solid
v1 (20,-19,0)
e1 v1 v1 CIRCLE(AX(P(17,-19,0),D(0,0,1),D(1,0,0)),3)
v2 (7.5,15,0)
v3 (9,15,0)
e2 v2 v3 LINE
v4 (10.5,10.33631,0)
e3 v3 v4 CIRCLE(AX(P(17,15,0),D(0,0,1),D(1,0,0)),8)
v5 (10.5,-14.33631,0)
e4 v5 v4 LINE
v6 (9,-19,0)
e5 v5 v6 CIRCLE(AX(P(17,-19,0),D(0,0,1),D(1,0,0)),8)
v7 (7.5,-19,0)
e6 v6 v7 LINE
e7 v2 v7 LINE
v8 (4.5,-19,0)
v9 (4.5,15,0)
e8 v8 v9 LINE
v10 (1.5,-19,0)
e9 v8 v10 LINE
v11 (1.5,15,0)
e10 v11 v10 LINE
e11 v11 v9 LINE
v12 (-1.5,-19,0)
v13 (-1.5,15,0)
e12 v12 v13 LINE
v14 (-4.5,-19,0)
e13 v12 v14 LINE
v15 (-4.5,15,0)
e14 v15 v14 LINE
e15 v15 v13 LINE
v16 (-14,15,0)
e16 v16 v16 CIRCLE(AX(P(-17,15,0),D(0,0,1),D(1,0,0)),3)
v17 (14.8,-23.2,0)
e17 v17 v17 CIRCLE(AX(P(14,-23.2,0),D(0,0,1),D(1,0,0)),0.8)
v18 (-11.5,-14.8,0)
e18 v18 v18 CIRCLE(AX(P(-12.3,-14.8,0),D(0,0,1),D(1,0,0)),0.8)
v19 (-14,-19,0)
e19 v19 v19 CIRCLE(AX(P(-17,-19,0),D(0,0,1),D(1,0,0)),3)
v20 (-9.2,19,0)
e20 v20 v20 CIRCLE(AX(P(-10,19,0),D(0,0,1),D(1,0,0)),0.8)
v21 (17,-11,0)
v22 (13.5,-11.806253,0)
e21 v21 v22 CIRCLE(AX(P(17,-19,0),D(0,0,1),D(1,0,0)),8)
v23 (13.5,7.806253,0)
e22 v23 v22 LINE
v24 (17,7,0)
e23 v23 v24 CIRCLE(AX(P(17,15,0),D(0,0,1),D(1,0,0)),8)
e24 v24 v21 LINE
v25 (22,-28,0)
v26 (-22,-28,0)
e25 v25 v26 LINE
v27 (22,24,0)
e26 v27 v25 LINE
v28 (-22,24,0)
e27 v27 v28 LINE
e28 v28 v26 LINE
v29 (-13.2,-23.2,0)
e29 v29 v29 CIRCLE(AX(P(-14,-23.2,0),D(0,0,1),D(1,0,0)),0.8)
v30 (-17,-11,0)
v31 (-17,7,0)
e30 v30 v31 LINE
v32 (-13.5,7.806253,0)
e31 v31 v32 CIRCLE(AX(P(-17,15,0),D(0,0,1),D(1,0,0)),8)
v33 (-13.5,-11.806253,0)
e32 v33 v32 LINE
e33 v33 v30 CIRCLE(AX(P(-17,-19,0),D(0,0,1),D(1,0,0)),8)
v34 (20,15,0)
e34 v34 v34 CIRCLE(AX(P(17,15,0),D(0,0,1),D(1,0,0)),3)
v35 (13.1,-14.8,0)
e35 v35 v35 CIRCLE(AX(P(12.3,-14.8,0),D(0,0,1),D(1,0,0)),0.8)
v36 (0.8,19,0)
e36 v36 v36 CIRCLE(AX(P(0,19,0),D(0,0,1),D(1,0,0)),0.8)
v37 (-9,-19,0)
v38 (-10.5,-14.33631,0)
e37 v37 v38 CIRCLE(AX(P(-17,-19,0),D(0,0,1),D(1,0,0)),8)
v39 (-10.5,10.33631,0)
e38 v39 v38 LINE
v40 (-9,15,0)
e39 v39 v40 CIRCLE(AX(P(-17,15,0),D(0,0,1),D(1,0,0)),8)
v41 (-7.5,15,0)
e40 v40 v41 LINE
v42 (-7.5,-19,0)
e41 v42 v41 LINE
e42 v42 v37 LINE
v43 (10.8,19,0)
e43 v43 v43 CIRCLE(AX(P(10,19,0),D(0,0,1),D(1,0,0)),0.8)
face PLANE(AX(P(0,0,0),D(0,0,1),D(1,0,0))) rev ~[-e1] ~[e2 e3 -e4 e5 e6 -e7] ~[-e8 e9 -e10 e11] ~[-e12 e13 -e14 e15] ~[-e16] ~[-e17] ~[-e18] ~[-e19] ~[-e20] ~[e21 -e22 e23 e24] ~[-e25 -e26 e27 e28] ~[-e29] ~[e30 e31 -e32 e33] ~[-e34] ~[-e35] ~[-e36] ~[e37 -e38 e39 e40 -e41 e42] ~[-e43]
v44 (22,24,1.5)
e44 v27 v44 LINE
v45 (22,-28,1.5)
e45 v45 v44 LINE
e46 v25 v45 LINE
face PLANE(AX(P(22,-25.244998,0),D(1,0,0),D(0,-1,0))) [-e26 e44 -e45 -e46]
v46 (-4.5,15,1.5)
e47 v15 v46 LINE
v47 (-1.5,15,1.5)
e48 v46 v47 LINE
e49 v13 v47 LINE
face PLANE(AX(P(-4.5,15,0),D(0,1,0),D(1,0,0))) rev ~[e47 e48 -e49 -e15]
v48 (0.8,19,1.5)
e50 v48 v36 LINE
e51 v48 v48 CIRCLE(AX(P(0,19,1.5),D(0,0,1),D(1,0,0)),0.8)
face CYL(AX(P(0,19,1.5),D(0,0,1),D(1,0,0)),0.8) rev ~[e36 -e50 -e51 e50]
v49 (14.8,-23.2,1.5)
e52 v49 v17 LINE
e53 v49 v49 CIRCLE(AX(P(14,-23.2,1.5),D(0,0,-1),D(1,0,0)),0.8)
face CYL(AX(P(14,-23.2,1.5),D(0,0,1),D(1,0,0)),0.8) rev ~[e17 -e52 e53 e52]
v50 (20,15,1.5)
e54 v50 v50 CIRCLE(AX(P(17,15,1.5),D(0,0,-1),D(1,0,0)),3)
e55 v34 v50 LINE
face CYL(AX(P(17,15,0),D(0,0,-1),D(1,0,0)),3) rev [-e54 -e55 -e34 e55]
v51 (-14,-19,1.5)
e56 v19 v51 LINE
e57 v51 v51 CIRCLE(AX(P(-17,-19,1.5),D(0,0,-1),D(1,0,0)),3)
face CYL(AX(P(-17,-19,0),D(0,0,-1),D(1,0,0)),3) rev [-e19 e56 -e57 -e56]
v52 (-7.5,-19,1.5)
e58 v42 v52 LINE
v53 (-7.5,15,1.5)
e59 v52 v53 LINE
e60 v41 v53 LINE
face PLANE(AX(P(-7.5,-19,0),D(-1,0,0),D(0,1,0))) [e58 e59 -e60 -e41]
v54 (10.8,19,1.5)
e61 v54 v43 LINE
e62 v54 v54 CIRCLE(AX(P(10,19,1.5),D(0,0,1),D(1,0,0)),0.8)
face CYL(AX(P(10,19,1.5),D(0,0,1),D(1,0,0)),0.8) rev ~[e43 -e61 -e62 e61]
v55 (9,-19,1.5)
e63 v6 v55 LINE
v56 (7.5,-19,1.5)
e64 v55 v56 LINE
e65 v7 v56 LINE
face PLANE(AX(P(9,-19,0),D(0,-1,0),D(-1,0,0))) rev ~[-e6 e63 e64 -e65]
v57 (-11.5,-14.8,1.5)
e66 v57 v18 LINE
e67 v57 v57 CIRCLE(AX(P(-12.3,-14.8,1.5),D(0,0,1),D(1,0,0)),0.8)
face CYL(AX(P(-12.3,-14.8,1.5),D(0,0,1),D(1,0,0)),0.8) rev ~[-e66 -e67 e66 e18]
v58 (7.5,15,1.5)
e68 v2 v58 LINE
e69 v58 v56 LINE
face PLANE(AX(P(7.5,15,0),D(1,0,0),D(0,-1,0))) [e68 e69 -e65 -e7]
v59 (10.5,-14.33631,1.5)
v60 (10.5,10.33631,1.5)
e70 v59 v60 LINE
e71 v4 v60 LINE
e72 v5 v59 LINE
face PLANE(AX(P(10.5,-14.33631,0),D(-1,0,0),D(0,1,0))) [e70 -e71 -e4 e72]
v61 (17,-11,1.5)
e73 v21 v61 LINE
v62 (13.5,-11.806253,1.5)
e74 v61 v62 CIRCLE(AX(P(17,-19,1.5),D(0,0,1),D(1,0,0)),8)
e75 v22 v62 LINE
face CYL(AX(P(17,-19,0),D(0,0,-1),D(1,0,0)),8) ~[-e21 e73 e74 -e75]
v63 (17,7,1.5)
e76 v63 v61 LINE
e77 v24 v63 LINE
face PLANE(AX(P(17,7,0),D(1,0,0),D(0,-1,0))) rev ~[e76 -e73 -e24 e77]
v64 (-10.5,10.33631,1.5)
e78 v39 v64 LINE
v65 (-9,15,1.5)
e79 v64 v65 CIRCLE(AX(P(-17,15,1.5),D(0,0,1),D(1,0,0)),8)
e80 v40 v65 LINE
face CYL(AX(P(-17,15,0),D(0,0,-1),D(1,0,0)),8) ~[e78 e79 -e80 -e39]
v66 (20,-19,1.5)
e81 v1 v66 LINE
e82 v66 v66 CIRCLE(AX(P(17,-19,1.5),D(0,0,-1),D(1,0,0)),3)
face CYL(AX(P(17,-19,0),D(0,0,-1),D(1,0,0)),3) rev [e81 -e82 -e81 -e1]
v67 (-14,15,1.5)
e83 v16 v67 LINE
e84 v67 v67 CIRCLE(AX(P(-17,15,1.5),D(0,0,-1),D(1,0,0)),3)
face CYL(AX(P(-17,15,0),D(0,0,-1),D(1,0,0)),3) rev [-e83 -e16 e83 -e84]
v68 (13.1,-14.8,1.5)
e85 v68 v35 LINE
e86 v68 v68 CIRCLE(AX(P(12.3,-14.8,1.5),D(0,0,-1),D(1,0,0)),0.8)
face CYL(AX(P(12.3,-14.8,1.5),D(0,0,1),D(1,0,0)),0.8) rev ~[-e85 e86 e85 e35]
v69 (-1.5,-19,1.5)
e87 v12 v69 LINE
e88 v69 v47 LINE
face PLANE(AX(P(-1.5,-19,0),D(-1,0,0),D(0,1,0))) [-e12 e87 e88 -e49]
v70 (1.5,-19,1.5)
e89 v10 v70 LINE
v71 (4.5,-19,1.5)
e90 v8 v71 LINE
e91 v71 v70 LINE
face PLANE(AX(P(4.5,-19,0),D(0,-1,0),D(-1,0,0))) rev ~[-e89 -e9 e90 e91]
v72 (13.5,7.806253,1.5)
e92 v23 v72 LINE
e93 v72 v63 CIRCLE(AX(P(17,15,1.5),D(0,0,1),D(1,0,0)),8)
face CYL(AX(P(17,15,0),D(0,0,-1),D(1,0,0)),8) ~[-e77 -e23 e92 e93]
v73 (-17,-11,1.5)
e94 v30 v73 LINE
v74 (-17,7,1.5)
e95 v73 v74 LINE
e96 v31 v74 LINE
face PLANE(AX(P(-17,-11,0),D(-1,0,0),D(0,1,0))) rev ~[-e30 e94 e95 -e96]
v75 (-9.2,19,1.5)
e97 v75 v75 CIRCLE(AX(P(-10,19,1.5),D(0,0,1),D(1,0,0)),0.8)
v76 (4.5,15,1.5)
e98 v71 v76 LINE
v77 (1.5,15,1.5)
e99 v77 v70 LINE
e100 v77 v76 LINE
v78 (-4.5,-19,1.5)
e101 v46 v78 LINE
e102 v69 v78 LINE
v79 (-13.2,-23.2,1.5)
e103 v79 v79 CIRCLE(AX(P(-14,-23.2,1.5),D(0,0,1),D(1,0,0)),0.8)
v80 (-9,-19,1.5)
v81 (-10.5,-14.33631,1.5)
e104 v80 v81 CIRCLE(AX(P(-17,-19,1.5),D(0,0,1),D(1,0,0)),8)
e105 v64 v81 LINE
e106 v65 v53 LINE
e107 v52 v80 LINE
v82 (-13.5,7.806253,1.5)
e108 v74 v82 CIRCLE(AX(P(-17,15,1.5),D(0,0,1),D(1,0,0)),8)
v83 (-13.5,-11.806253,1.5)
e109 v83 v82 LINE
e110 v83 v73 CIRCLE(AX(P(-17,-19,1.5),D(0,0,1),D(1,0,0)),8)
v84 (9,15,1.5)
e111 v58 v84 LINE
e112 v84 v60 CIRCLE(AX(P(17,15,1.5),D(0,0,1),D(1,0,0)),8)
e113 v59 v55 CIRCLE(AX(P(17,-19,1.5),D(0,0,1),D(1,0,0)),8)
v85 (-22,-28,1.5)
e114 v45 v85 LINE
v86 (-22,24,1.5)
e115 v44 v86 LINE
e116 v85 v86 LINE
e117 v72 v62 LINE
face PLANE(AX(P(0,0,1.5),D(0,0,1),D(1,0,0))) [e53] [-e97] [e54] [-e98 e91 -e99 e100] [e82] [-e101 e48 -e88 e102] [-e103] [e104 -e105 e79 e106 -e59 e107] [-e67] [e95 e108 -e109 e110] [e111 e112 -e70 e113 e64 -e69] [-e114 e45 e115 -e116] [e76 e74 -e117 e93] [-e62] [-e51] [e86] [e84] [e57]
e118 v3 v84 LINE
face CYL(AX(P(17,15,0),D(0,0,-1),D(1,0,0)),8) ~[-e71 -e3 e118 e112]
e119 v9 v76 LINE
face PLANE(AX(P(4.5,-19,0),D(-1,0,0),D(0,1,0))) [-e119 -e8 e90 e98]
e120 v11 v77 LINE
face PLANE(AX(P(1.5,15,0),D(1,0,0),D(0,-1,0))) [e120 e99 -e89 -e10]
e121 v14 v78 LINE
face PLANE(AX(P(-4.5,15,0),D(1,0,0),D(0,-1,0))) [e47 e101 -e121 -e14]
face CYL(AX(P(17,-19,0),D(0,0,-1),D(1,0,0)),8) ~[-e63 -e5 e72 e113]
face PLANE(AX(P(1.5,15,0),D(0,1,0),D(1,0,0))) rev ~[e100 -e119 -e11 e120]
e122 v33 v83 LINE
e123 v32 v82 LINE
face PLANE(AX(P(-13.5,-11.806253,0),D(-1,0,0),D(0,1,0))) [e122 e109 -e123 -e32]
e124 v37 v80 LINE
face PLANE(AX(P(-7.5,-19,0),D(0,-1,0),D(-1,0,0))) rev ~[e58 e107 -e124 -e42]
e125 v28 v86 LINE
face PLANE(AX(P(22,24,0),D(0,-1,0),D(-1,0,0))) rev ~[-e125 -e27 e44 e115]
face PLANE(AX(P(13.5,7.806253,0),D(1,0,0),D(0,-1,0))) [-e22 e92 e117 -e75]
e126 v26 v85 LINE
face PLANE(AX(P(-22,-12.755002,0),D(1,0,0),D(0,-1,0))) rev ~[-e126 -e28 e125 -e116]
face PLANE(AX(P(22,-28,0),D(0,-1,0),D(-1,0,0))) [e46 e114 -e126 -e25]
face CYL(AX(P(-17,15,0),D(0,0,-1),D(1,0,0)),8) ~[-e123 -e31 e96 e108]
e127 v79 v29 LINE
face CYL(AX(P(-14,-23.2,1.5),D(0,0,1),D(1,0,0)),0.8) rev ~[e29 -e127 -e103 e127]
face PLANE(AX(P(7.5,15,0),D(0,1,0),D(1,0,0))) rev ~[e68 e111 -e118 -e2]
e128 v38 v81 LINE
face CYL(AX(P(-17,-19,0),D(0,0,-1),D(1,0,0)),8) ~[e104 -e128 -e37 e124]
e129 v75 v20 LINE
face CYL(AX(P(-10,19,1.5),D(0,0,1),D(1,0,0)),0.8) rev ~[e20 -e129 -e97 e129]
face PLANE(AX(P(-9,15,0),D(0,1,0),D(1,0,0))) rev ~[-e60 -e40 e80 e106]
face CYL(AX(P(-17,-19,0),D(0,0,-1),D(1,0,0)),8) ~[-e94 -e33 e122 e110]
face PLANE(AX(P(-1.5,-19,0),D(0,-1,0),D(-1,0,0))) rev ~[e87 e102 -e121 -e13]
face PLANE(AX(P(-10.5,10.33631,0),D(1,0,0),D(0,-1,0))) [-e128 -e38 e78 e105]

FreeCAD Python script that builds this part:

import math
import FreeCAD as App
import Part
import Sketcher
from FreeCAD import Vector
Q = App.Units.Quantity

doc = App.newDocument("Part")
body = doc.addObject("PartDesign::Body", "Body")

sketch1 = body.newObject("Sketcher::SketchObject", "Sketch")
sketch1.AttachmentSupport = (doc.getObject("XY_Plane"), [""])
sketch1.MapMode = "FlatFace"
sketch1.addGeometry(Part.LineSegment(Vector(-22, -28, 0), Vector(22, -28, 0)), False)
sketch1.addGeometry(Part.LineSegment(Vector(22, -28, 0), Vector(22, 24, 0)), False)
sketch1.addGeometry(Part.LineSegment(Vector(22, 24, 0), Vector(-22, 24, 0)), False)
sketch1.addGeometry(Part.LineSegment(Vector(-22, 24, 0), Vector(-22, -28, 0)), False)
sketch1.addGeometry(Part.Circle(Vector(-17, -19, 0), Vector(0, 0, 1), 3), False)
sketch1.addGeometry(Part.LineSegment(Vector(-17, -11, 0), Vector(-17, 7, 0)), False)
sketch1.addGeometry(Part.ArcOfCircle(Part.Circle(Vector(-17, 15, 0), Vector(0, 0, 1), 8), math.radians(-90), math.radians(-64.05552)), False)
sketch1.addGeometry(Part.LineSegment(Vector(-13.5, 7.806253, 0), Vector(-13.5, -11.806253, 0)), False)
sketch1.addGeometry(Part.ArcOfCircle(Part.Circle(Vector(-17, -19, 0), Vector(0, 0, 1), 8), math.radians(64.05552), math.radians(90)), False)
sketch1.addGeometry(Part.ArcOfCircle(Part.Circle(Vector(-17, -19, 0), Vector(0, 0, 1), 8), math.radians(0), math.radians(35.659088)), False)
sketch1.addGeometry(Part.LineSegment(Vector(-10.5, -14.33631, 0), Vector(-10.5, 10.33631, 0)), False)
sketch1.addGeometry(Part.ArcOfCircle(Part.Circle(Vector(-17, 15, 0), Vector(0, 0, 1), 8), math.radians(-35.659088), math.radians(0)), False)
sketch1.addGeometry(Part.LineSegment(Vector(-9, 15, 0), Vector(-7.5, 15, 0)), False)
sketch1.addGeometry(Part.LineSegment(Vector(-7.5, 15, 0), Vector(-7.5, -19, 0)), False)
sketch1.addGeometry(Part.LineSegment(Vector(-7.5, -19, 0), Vector(-9, -19, 0)), False)
sketch1.addGeometry(Part.LineSegment(Vector(-1.5, -19, 0), Vector(-4.5, -19, 0)), False)
sketch1.addGeometry(Part.LineSegment(Vector(-4.5, -19, 0), Vector(-4.5, 15, 0)), False)
sketch1.addGeometry(Part.LineSegment(Vector(-4.5, 15, 0), Vector(-1.5, 15, 0)), False)
sketch1.addGeometry(Part.LineSegment(Vector(-1.5, 15, 0), Vector(-1.5, -19, 0)), False)
sketch1.addGeometry(Part.LineSegment(Vector(4.5, -19, 0), Vector(1.5, -19, 0)), False)
sketch1.addGeometry(Part.LineSegment(Vector(1.5, -19, 0), Vector(1.5, 15, 0)), False)
sketch1.addGeometry(Part.LineSegment(Vector(1.5, 15, 0), Vector(4.5, 15, 0)), False)
sketch1.addGeometry(Part.LineSegment(Vector(4.5, 15, 0), Vector(4.5, -19, 0)), False)
sketch1.addGeometry(Part.LineSegment(Vector(9, -19, 0), Vector(7.5, -19, 0)), False)
sketch1.addGeometry(Part.LineSegment(Vector(7.5, -19, 0), Vector(7.5, 15, 0)), False)
sketch1.addGeometry(Part.LineSegment(Vector(7.5, 15, 0), Vector(9, 15, 0)), False)
sketch1.addGeometry(Part.ArcOfCircle(Part.Circle(Vector(17, 15, 0), Vector(0, 0, 1), 8), math.radians(180), math.radians(215.659088)), False)
sketch1.addGeometry(Part.LineSegment(Vector(10.5, 10.33631, 0), Vector(10.5, -14.33631, 0)), False)
sketch1.addGeometry(Part.ArcOfCircle(Part.Circle(Vector(17, -19, 0), Vector(0, 0, 1), 8), math.radians(144.340912), math.radians(180)), False)
sketch1.addGeometry(Part.Circle(Vector(-17, 15, 0), Vector(0, 0, 1), 3), False)
sketch1.addGeometry(Part.Circle(Vector(17, -19, 0), Vector(0, 0, 1), 3), False)
sketch1.addGeometry(Part.ArcOfCircle(Part.Circle(Vector(17, -19, 0), Vector(0, 0, 1), 8), math.radians(90), math.radians(115.94448)), False)
sketch1.addGeometry(Part.LineSegment(Vector(13.5, -11.806253, 0), Vector(13.5, 7.806253, 0)), False)
sketch1.addGeometry(Part.ArcOfCircle(Part.Circle(Vector(17, 15, 0), Vector(0, 0, 1), 8), math.radians(-115.94448), math.radians(-90)), False)
sketch1.addGeometry(Part.LineSegment(Vector(17, 7, 0), Vector(17, -11, 0)), False)
sketch1.addGeometry(Part.Circle(Vector(17, 15, 0), Vector(0, 0, 1), 3), False)
sketch1.addConstraint(Sketcher.Constraint("Coincident", 0, 2, 1, 1))
sketch1.addConstraint(Sketcher.Constraint("Coincident", 1, 2, 2, 1))
sketch1.addConstraint(Sketcher.Constraint("Coincident", 2, 2, 3, 1))
sketch1.addConstraint(Sketcher.Constraint("Coincident", 3, 2, 0, 1))
sketch1.addConstraint(Sketcher.Constraint("Coincident", 5, 2, 6, 1))
sketch1.addConstraint(Sketcher.Constraint("Coincident", 6, 2, 7, 1))
sketch1.addConstraint(Sketcher.Constraint("Coincident", 7, 2, 8, 1))
sketch1.addConstraint(Sketcher.Constraint("Coincident", 8, 2, 5, 1))
sketch1.addConstraint(Sketcher.Constraint("Coincident", 9, 2, 10, 1))
sketch1.addConstraint(Sketcher.Constraint("Coincident", 10, 2, 11, 1))
sketch1.addConstraint(Sketcher.Constraint("Coincident", 11, 2, 12, 1))
sketch1.addConstraint(Sketcher.Constraint("Coincident", 12, 2, 13, 1))
sketch1.addConstraint(Sketcher.Constraint("Coincident", 13, 2, 14, 1))
sketch1.addConstraint(Sketcher.Constraint("Coincident", 14, 2, 9, 1))
sketch1.addConstraint(Sketcher.Constraint("Coincident", 15, 2, 16, 1))
sketch1.addConstraint(Sketcher.Constraint("Coincident", 16, 2, 17, 1))
sketch1.addConstraint(Sketcher.Constraint("Coincident", 17, 2, 18, 1))
sketch1.addConstraint(Sketcher.Constraint("Coincident", 18, 2, 15, 1))
sketch1.addConstraint(Sketcher.Constraint("Coincident", 19, 2, 20, 1))
sketch1.addConstraint(Sketcher.Constraint("Coincident", 20, 2, 21, 1))
sketch1.addConstraint(Sketcher.Constraint("Coincident", 21, 2, 22, 1))
sketch1.addConstraint(Sketcher.Constraint("Coincident", 22, 2, 19, 1))
sketch1.addConstraint(Sketcher.Constraint("Coincident", 23, 2, 24, 1))
sketch1.addConstraint(Sketcher.Constraint("Coincident", 24, 2, 25, 1))
sketch1.addConstraint(Sketcher.Constraint("Coincident", 25, 2, 26, 1))
sketch1.addConstraint(Sketcher.Constraint("Coincident", 26, 2, 27, 1))
sketch1.addConstraint(Sketcher.Constraint("Coincident", 27, 2, 28, 1))
sketch1.addConstraint(Sketcher.Constraint("Coincident", 28, 2, 23, 1))
sketch1.addConstraint(Sketcher.Constraint("Coincident", 31, 2, 32, 1))
sketch1.addConstraint(Sketcher.Constraint("Coincident", 32, 2, 33, 1))
sketch1.addConstraint(Sketcher.Constraint("Coincident", 33, 2, 34, 1))
sketch1.addConstraint(Sketcher.Constraint("Coincident", 34, 2, 31, 1))
sketch1.addConstraint(Sketcher.Constraint("Horizontal", 0))
sketch1.addConstraint(Sketcher.Constraint("Vertical", 1))
sketch1.addConstraint(Sketcher.Constraint("Horizontal", 2))
sketch1.addConstraint(Sketcher.Constraint("Vertical", 3))
sketch1.addConstraint(Sketcher.Constraint("Vertical", 5))
sketch1.addConstraint(Sketcher.Constraint("Vertical", 7))
sketch1.addConstraint(Sketcher.Constraint("Vertical", 10))
sketch1.addConstraint(Sketcher.Constraint("Horizontal", 12))
sketch1.addConstraint(Sketcher.Constraint("Vertical", 13))
sketch1.addConstraint(Sketcher.Constraint("Horizontal", 14))
sketch1.addConstraint(Sketcher.Constraint("Horizontal", 15))
sketch1.addConstraint(Sketcher.Constraint("Vertical", 16))
sketch1.addConstraint(Sketcher.Constraint("Horizontal", 17))
sketch1.addConstraint(Sketcher.Constraint("Vertical", 18))
sketch1.addConstraint(Sketcher.Constraint("Horizontal", 19))
sketch1.addConstraint(Sketcher.Constraint("Vertical", 20))
sketch1.addConstraint(Sketcher.Constraint("Horizontal", 21))
sketch1.addConstraint(Sketcher.Constraint("Vertical", 22))
sketch1.addConstraint(Sketcher.Constraint("Horizontal", 23))
sketch1.addConstraint(Sketcher.Constraint("Vertical", 24))
sketch1.addConstraint(Sketcher.Constraint("Horizontal", 25))
sketch1.addConstraint(Sketcher.Constraint("Vertical", 27))
sketch1.addConstraint(Sketcher.Constraint("Vertical", 32))
sketch1.addConstraint(Sketcher.Constraint("Vertical", 34))
sketch1.addConstraint(Sketcher.Constraint("Coincident", 8, 3, 4, 3))
sketch1.addConstraint(Sketcher.Constraint("Coincident", 9, 3, 4, 3))
sketch1.addConstraint(Sketcher.Constraint("Coincident", 11, 3, 6, 3))
sketch1.addConstraint(Sketcher.Constraint("Coincident", 29, 3, 6, 3))
sketch1.addConstraint(Sketcher.Constraint("Coincident", 30, 3, 28, 3))
sketch1.addConstraint(Sketcher.Constraint("Coincident", 31, 3, 28, 3))
sketch1.addConstraint(Sketcher.Constraint("Coincident", 33, 3, 26, 3))
sketch1.addConstraint(Sketcher.Constraint("Coincident", 35, 3, 26, 3))
sketch1.addConstraint(Sketcher.Constraint("Equal", 6, 8))
sketch1.addConstraint(Sketcher.Constraint("Equal", 8, 9))
sketch1.addConstraint(Sketcher.Constraint("Equal", 9, 11))
sketch1.addConstraint(Sketcher.Constraint("Equal", 11, 26))
sketch1.addConstraint(Sketcher.Constraint("Equal", 26, 28))
sketch1.addConstraint(Sketcher.Constraint("Equal", 4, 29))
sketch1.addConstraint(Sketcher.Constraint("Equal", 29, 30))
sketch1.addConstraint(Sketcher.Constraint("Equal", 28, 31))
sketch1.addConstraint(Sketcher.Constraint("Equal", 31, 33))
sketch1.addConstraint(Sketcher.Constraint("Equal", 30, 35))
sketch1.addConstraint(Sketcher.Constraint("Symmetric", 6, 3, 26, 3, -2))
sketch1.addConstraint(Sketcher.Constraint("Symmetric", 4, 3, 28, 3, -2))
sketch1.addConstraint(Sketcher.Constraint("Symmetric", 18, 2, 19, 2, -2))
sketch1.addConstraint(Sketcher.Constraint("Symmetric", 16, 2, 21, 2, -2))
sketch1.addConstraint(Sketcher.Constraint("Symmetric", 13, 2, 23, 2, -2))
sketch1.addConstraint(Sketcher.Constraint("Horizontal", 35, 3, 11, 2))
sketch1.addConstraint(Sketcher.Constraint("Horizontal", 31, 3, 13, 2))
sketch1.addConstraint(Sketcher.Constraint("Horizontal", 14, 2, 15, 2))
sketch1.addConstraint(Sketcher.Constraint("Horizontal", 12, 2, 16, 2))
sketch1.addConstraint(Sketcher.Constraint("Horizontal", 21, 2, 24, 2))
sketch1.addConstraint(Sketcher.Constraint("Horizontal", 10, 2, 26, 2))
sketch1.addConstraint(Sketcher.Constraint("Horizontal", 7, 2, 31, 2))
sketch1.addConstraint(Sketcher.Constraint("Vertical", 4, 3, 6, 3))
sketch1.addConstraint(Sketcher.Constraint("Vertical", 29, 3, 5, 2))
sketch1.addConstraint(Sketcher.Constraint("Vertical", 35, 3, 33, 2))
sketch1.addConstraint(Sketcher.Constraint("Diameter", 4, Q("6 mm")))
sketch1.addConstraint(Sketcher.Constraint("Radius", 6, Q("8 mm")))
sketch1.addConstraint(Sketcher.Constraint("DistanceX", 0, 1, 0, 2, Q("44 mm")))
sketch1.addConstraint(Sketcher.Constraint("DistanceX", 15, 2, 15, 1, Q("3 mm")))
sketch1.addConstraint(Sketcher.Constraint("DistanceY", 13, 2, 13, 1, Q("34 mm")))
sketch1.addConstraint(Sketcher.Constraint("DistanceX", 6, 3, 26, 3, Q("34 mm")))
sketch1.addConstraint(Sketcher.Constraint("DistanceX", 28, 3, 0, 2, Q("5 mm")))
sketch1.addConstraint(Sketcher.Constraint("DistanceX", 7, 2, 9, 2, Q("3 mm")))
sketch1.addConstraint(Sketcher.Constraint("DistanceX", 10, 2, 12, 2, Q("3 mm")))
sketch1.addConstraint(Sketcher.Constraint("DistanceX", 13, 2, 15, 2, Q("3 mm")))
sketch1.addConstraint(Sketcher.Constraint("DistanceX", 18, 2, 19, 2, Q("3 mm")))
sketch1.addConstraint(Sketcher.Constraint("DistanceY", 1, 1, 1, 2, Q("52 mm")))
sketch1.addConstraint(Sketcher.Constraint("DistanceY", 4, 3, -1, 1, Q("19 mm")))
sketch1.addConstraint(Sketcher.Constraint("DistanceY", 0, 2, -1, 1, Q("28 mm")))
pad1 = body.newObject("PartDesign::Pad", "Pad")
pad1.Profile = sketch1
pad1.Length = 1.5

sketch2 = body.newObject("Sketcher::SketchObject", "Sketch001")
sketch2.AttachmentSupport = (doc.getObject("XY_Plane"), [""])
sketch2.MapMode = "FlatFace"
sketch2.AttachmentOffset = App.Placement(Vector(0, 0, 1.5), App.Rotation())
sketch2.addGeometry(Part.Circle(Vector(12.3, -14.8, 0), Vector(0, 0, 1), 0.8), False)
sketch2.addGeometry(Part.Circle(Vector(14, -23.2, 0), Vector(0, 0, 1), 0.8), False)
sketch2.addGeometry(Part.Circle(Vector(-12.3, -14.8, 0), Vector(0, 0, 1), 0.8), False)
sketch2.addGeometry(Part.Circle(Vector(-14, -23.2, 0), Vector(0, 0, 1), 0.8), False)
sketch2.addConstraint(Sketcher.Constraint("Equal", 0, 1))
sketch2.addConstraint(Sketcher.Constraint("Equal", 1, 2))
sketch2.addConstraint(Sketcher.Constraint("Equal", 2, 3))
sketch2.addConstraint(Sketcher.Constraint("Symmetric", 0, 3, 2, 3, -2))
sketch2.addConstraint(Sketcher.Constraint("Symmetric", 1, 3, 3, 3, -2))
sketch2.addConstraint(Sketcher.Constraint("Diameter", 0, Q("1.6 mm")))
sketch2.addConstraint(Sketcher.Constraint("DistanceX", -1, 1, 1, 3, Q("14 mm")))
sketch2.addConstraint(Sketcher.Constraint("DistanceX", -1, 1, 0, 3, Q("12.3 mm")))
sketch2.addConstraint(Sketcher.Constraint("DistanceY", 0, 3, -1, 1, Q("14.8 mm")))
sketch2.addConstraint(Sketcher.Constraint("DistanceY", 1, 3, -1, 1, Q("23.2 mm")))
pocket1 = body.newObject("PartDesign::Pocket", "Pocket")
pocket1.Profile = sketch2
pocket1.Length = 1.5

sketch3 = body.newObject("Sketcher::SketchObject", "Sketch002")
sketch3.AttachmentSupport = (doc.getObject("XY_Plane"), [""])
sketch3.MapMode = "FlatFace"
sketch3.AttachmentOffset = App.Placement(Vector(0, 0, 1.5), App.Rotation())
sketch3.addGeometry(Part.Circle(Vector(0, 19, 0), Vector(0, 0, 1), 0.8), False)
sketch3.addGeometry(Part.Circle(Vector(-10, 19, 0), Vector(0, 0, 1), 0.8), False)
sketch3.addGeometry(Part.Circle(Vector(10, 19, 0), Vector(0, 0, 1), 0.8), False)
sketch3.addConstraint(Sketcher.Constraint("Equal", 0, 1))
sketch3.addConstraint(Sketcher.Constraint("Equal", 1, 2))
sketch3.addConstraint(Sketcher.Constraint("Symmetric", 1, 3, 2, 3, -2))
sketch3.addConstraint(Sketcher.Constraint("PointOnObject", 0, 3, -2))
sketch3.addConstraint(Sketcher.Constraint("Horizontal", 0, 3, 1, 3))
sketch3.addConstraint(Sketcher.Constraint("Diameter", 0, Q("1.6 mm")))
sketch3.addConstraint(Sketcher.Constraint("DistanceX", 1, 3, -1, 1, Q("10 mm")))
sketch3.addConstraint(Sketcher.Constraint("DistanceY", -1, 1, 0, 3, Q("19 mm")))
pocket2 = body.newObject("PartDesign::Pocket", "Pocket001")
pocket2.Profile = sketch3
pocket2.Length = 1.5

doc.recompute()
